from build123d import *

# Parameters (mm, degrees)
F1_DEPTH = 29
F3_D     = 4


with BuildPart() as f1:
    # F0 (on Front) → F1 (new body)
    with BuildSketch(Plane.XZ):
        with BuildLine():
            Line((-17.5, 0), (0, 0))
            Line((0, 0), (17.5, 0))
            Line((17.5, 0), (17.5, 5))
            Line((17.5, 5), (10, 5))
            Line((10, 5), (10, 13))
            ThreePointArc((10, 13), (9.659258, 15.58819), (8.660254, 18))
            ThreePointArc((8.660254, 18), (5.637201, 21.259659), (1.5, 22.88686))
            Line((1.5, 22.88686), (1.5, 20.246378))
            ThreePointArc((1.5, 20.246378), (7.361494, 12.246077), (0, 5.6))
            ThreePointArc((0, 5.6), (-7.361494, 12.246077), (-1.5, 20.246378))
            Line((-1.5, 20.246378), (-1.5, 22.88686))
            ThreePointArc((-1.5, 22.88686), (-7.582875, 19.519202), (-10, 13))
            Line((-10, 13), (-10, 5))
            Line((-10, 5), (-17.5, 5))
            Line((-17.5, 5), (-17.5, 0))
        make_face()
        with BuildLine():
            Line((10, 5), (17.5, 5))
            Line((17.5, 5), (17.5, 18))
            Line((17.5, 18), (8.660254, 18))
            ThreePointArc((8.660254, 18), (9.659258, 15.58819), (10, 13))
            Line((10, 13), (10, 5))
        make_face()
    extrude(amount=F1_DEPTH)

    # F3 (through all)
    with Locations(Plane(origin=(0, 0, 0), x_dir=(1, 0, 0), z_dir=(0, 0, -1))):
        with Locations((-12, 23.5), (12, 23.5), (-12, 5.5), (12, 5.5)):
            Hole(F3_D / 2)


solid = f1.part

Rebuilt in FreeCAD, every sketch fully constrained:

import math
import FreeCAD as App
import Part
import Sketcher
from FreeCAD import Vector
Q = App.Units.Quantity

doc = App.newDocument("Part")
body = doc.addObject("PartDesign::Body", "Body")

# Sketch on XZ plane
sketch1 = body.newObject("Sketcher::SketchObject", "Sketch")
sketch1.AttachmentSupport = (doc.getObject("XZ_Plane"), [""])
sketch1.MapMode = "FlatFace"
sketch1.addGeometry(Part.LineSegment(Vector(-17.5, 0, 0), Vector(17.5, 0, 0)), False)
sketch1.addGeometry(Part.LineSegment(Vector(17.5, 0, 0), Vector(17.5, 18, 0)), False)
sketch1.addGeometry(Part.LineSegment(Vector(17.5, 18, 0), Vector(8.7, 18, 0)), False)
sketch1.addGeometry(Part.ArcOfCircle(Part.Circle(Vector(0, 13, 0), Vector(0, 0, 1), 10), math.radians(30), math.radians(81)), False)
sketch1.addGeometry(Part.LineSegment(Vector(1.5, 22.9, 0), Vector(1.5, 20.2, 0)), False)
sketch1.addGeometry(Part.ArcOfCircle(Part.Circle(Vector(0, 13, 0), Vector(0, 0, 1), 7.4), math.radians(-90), math.radians(78)), False)
sketch1.addGeometry(Part.ArcOfCircle(Part.Circle(Vector(0, 13, 0), Vector(0, 0, 1), 7.4), math.radians(102), math.radians(270)), False)
sketch1.addGeometry(Part.LineSegment(Vector(-1.5, 20.2, 0), Vector(-1.5, 22.9, 0)), False)
sketch1.addGeometry(Part.ArcOfCircle(Part.Circle(Vector(0, 13, 0), Vector(0, 0, 1), 10), math.radians(99), math.radians(180)), False)
sketch1.addGeometry(Part.LineSegment(Vector(-10, 13, 0), Vector(-10, 5, 0)), False)
sketch1.addGeometry(Part.LineSegment(Vector(-10, 5, 0), Vector(-17.5, 5, 0)), False)
sketch1.addGeometry(Part.LineSegment(Vector(-17.5, 5, 0), Vector(-17.5, 0, 0)), False)
sketch1.addConstraint(Sketcher.Constraint("Coincident", 0, 2, 1, 1))
sketch1.addConstraint(Sketcher.Constraint("Coincident", 1, 2, 2, 1))
sketch1.addConstraint(Sketcher.Constraint("Coincident", 2, 2, 3, 1))
sketch1.addConstraint(Sketcher.Constraint("Coincident", 3, 2, 4, 1))
sketch1.addConstraint(Sketcher.Constraint("Coincident", 4, 2, 5, 2))
sketch1.addConstraint(Sketcher.Constraint("Tangent", 5, 1, 6, 2))
sketch1.addConstraint(Sketcher.Constraint("Coincident", 6, 1, 7, 1))
sketch1.addConstraint(Sketcher.Constraint("Coincident", 7, 2, 8, 1))
sketch1.addConstraint(Sketcher.Constraint("Tangent", 8, 2, 9, 1))
sketch1.addConstraint(Sketcher.Constraint("Coincident", 9, 2, 10, 1))
sketch1.addConstraint(Sketcher.Constraint("Coincident", 10, 2, 11, 1))
sketch1.addConstraint(Sketcher.Constraint("Coincident", 11, 2, 0, 1))
sketch1.addConstraint(Sketcher.Constraint("Horizontal", 0))
sketch1.addConstraint(Sketcher.Constraint("Vertical", 1))
sketch1.addConstraint(Sketcher.Constraint("Horizontal", 2))
sketch1.addConstraint(Sketcher.Constraint("Vertical", 4))
sketch1.addConstraint(Sketcher.Constraint("Vertical", 7))
sketch1.addConstraint(Sketcher.Constraint("Vertical", 9))
sketch1.addConstraint(Sketcher.Constraint("Horizontal", 10))
sketch1.addConstraint(Sketcher.Constraint("Vertical", 11))
sketch1.addConstraint(Sketcher.Constraint("Coincident", 5, 3, 3, 3))
sketch1.addConstraint(Sketcher.Constraint("Coincident", 8, 3, 3, 3))
sketch1.addConstraint(Sketcher.Constraint("Equal", 5, 6))
sketch1.addConstraint(Sketcher.Constraint("Symmetric", 0, 2, 11, 2, -1, 1))
sketch1.addConstraint(Sketcher.Constraint("Symmetric", 4, 2, 6, 1, -2))
sketch1.addConstraint(Sketcher.Constraint("PointOnObject", 5, 1, -2))
sketch1.addConstraint(Sketcher.Constraint("Horizontal", 3, 2, 7, 2))
sketch1.addConstraint(Sketcher.Constraint("Radius", 3, Q("9.999999 mm")))
sketch1.addConstraint(Sketcher.Constraint("Radius", 5, Q("7.4 mm")))
sketch1.addConstraint(Sketcher.Constraint("DistanceX", 0, 1, 0, 2, Q("35 mm")))
sketch1.addConstraint(Sketcher.Constraint("DistanceY", 1, 1, 1, 2, Q("18 mm")))
sketch1.addConstraint(Sketcher.Constraint("DistanceY", 9, 2, 9, 1, Q("8 mm")))
sketch1.addConstraint(Sketcher.Constraint("DistanceY", 11, 2, 11, 1, Q("5 mm")))
sketch1.addConstraint(Sketcher.Constraint("DistanceX", 6, 1, 4, 2, Q("3 mm")))
pad1 = body.newObject("PartDesign::Pad", "Pad")
pad1.Profile = sketch1
pad1.Length = 29

# Sketch on XY plane
sketch2 = body.newObject("Sketcher::SketchObject", "Sketch001")
sketch2.AttachmentSupport = (doc.getObject("XY_Plane"), [""])
sketch2.MapMode = "FlatFace"
sketch2.addGeometry(Part.Circle(Vector(-12, -23.5, 0), Vector(0, 0, 1), 2), False)
sketch2.addGeometry(Part.Circle(Vector(12, -23.5, 0), Vector(0, 0, 1), 2), False)
sketch2.addGeometry(Part.Circle(Vector(-12, -5.5, 0), Vector(0, 0, 1), 2), False)
sketch2.addGeometry(Part.Circle(Vector(12, -5.5, 0), Vector(0, 0, 1), 2), False)
sketch2.addConstraint(Sketcher.Constraint("Equal", 0, 1))
sketch2.addConstraint(Sketcher.Constraint("Equal", 1, 2))
sketch2.addConstraint(Sketcher.Constraint("Equal", 2, 3))
sketch2.addConstraint(Sketcher.Constraint("Symmetric", 0, 3, 1, 3, -2))
sketch2.addConstraint(Sketcher.Constraint("Symmetric", 2, 3, 3, 3, -2))
sketch2.addConstraint(Sketcher.Constraint("Vertical", 0, 3, 2, 3))
sketch2.addConstraint(Sketcher.Constraint("Diameter", 0, Q("4 mm")))
sketch2.addConstraint(Sketcher.Constraint("DistanceX", 0, 3, -1, 1, Q("12 mm")))
sketch2.addConstraint(Sketcher.Constraint("DistanceY", 0, 3, 2, 3, Q("18 mm")))
sketch2.addConstraint(Sketcher.Constraint("DistanceY", 0, 3, -1, 1, Q("23.5 mm")))
doc.recompute()
hole = body.newObject("PartDesign::Hole", "Hole")
hole.Profile = sketch2
hole.ThreadType = "None"
hole.Diameter = 4
hole.DepthType = "ThroughAll"
hole.Reversed = True

doc.recompute()
